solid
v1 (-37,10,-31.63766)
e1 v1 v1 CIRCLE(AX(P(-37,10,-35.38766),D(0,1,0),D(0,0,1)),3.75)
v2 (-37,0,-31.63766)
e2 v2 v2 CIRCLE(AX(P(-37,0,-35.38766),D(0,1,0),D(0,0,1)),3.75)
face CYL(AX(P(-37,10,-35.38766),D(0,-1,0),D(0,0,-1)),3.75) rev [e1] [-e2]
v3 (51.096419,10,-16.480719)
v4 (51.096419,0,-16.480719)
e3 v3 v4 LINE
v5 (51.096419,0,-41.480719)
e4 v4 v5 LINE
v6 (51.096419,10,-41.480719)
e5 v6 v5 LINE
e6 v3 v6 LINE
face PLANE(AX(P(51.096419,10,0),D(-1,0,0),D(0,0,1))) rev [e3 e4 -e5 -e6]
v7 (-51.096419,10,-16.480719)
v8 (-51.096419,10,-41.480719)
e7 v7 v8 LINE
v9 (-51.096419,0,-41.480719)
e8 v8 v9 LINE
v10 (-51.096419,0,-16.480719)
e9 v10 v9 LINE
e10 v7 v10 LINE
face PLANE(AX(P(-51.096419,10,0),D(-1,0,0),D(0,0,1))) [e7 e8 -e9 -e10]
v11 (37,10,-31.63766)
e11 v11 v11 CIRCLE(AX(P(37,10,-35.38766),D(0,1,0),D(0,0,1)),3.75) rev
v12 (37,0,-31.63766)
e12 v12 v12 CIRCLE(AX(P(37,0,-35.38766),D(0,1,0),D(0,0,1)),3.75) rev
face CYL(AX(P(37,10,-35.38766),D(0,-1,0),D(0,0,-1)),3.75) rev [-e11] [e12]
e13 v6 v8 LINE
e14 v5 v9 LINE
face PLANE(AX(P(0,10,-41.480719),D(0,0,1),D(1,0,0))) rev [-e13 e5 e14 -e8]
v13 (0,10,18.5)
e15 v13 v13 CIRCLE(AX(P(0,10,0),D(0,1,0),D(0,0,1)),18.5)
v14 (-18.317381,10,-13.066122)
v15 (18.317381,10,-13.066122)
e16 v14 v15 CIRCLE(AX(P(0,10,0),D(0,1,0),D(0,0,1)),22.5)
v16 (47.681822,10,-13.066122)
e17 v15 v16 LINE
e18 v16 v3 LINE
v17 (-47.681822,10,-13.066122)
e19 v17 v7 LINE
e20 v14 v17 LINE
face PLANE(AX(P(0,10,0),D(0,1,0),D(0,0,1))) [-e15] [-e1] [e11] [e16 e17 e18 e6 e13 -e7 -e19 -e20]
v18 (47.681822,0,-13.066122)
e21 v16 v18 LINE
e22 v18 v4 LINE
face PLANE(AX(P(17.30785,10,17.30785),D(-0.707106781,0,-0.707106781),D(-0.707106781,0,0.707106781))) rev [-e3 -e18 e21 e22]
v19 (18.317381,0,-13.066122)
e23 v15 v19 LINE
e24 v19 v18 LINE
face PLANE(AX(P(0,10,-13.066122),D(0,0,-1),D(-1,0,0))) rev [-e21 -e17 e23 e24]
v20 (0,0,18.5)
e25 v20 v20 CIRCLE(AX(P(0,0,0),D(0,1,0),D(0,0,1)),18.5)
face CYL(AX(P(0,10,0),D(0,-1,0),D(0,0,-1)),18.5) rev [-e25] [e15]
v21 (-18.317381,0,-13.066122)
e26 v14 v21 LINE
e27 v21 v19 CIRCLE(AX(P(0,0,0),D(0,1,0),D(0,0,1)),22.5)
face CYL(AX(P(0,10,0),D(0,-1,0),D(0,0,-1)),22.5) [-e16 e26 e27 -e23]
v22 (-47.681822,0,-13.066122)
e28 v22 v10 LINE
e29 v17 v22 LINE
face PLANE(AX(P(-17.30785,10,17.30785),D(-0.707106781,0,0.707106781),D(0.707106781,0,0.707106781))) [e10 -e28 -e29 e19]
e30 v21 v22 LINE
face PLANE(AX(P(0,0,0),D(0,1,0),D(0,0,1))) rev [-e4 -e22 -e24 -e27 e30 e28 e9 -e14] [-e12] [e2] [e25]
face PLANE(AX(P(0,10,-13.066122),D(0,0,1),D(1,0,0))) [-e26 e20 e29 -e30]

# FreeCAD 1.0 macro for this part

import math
import FreeCAD as App
import Part
import Sketcher

doc = App.newDocument("Part")
body = doc.addObject("PartDesign::Body", "Body")

# Sketch on XZ plane
sketch1 = body.newObject("Sketcher::SketchObject", "Sketch")
sketch1.AttachmentSupport = (doc.getObject("XZ_Plane"), [""])
sketch1.MapMode = "FlatFace"
sketch1.addGeometry(Part.Circle(App.Vector(0, 0, 0), App.Vector(0, 0, 1), 22), False)
sketch1.addGeometry(Part.Circle(App.Vector(0, 0, 0), App.Vector(0, 0, 1), 18), False)
sketch1.addConstraint(Sketcher.Constraint("Coincident", 0, 3, -1, 1))
sketch1.addConstraint(Sketcher.Constraint("Coincident", 1, 3, -1, 1))
sketch1.addConstraint(Sketcher.Constraint("Diameter", 0, 45.0))
sketch1.addConstraint(Sketcher.Constraint("Diameter", 1, 37.0))
pad1 = body.newObject("PartDesign::Pad", "Pad")
pad1.Profile = sketch1
pad1.Length = 10
pad1.Reversed = True

# Sketch on XZ plane
sketch2 = body.newObject("Sketcher::SketchObject", "Sketch001")
sketch2.AttachmentSupport = (doc.getObject("XZ_Plane"), [""])
sketch2.MapMode = "FlatFace"
sketch2.addGeometry(Part.LineSegment(App.Vector(47.7, -13.1, 0), App.Vector(51.1, -16.5, 0)), False)
sketch2.addGeometry(Part.LineSegment(App.Vector(51.1, -16.5, 0), App.Vector(51.1, -41.5, 0)), False)
sketch2.addGeometry(Part.LineSegment(App.Vector(51.1, -41.5, 0), App.Vector(-51.1, -41.5, 0)), False)
sketch2.addGeometry(Part.LineSegment(App.Vector(-51.1, -41.5, 0), App.Vector(-51.1, -16.5, 0)), False)
sketch2.addGeometry(Part.LineSegment(App.Vector(-51.1, -16.5, 0), App.Vector(-47.7, -13.1, 0)), False)
sketch2.addGeometry(Part.LineSegment(App.Vector(-47.7, -13.1, 0), App.Vector(-13.1, -13.1, 0)), False)
sketch2.addGeometry(Part.ArcOfCircle(Part.Circle(App.Vector(0, 0, 0), App.Vector(0, 0, 1), 18.5), math.radians(-135), math.radians(-45)), False)
sketch2.addGeometry(Part.LineSegment(App.Vector(13.1, -13.1, 0), App.Vector(47.7, -13.1, 0)), False)
sketch2.addGeometry(Part.Circle(App.Vector(-37, -35.4, 0), App.Vector(0, 0, 1), 3.8), False)
sketch2.addGeometry(Part.Circle(App.Vector(37, -35.4, 0), App.Vector(0, 0, 1), 3.8), False)
sketch2.addConstraint(Sketcher.Constraint("Coincident", 0, 2, 1, 1))
sketch2.addConstraint(Sketcher.Constraint("Coincident", 1, 2, 2, 1))
sketch2.addConstraint(Sketcher.Constraint("Coincident", 2, 2, 3, 1))
sketch2.addConstraint(Sketcher.Constraint("Coincident", 3, 2, 4, 1))
sketch2.addConstraint(Sketcher.Constraint("Coincident", 4, 2, 5, 1))
sketch2.addConstraint(Sketcher.Constraint("Coincident", 5, 2, 6, 1))
sketch2.addConstraint(Sketcher.Constraint("Coincident", 6, 2, 7, 1))
sketch2.addConstraint(Sketcher.Constraint("Coincident", 7, 2, 0, 1))
sketch2.addConstraint(Sketcher.Constraint("Vertical", 1))
sketch2.addConstraint(Sketcher.Constraint("Horizontal", 2))
sketch2.addConstraint(Sketcher.Constraint("Vertical", 3))
sketch2.addConstraint(Sketcher.Constraint("Horizontal", 5))
sketch2.addConstraint(Sketcher.Constraint("Horizontal", 7))
sketch2.addConstraint(Sketcher.Constraint("Coincident", 6, 3, -1, 1))
sketch2.addConstraint(Sketcher.Constraint("Equal", 8, 9))
sketch2.addConstraint(Sketcher.Constraint("Symmetric", 8, 3, 9, 3, -2))
sketch2.addConstraint(Sketcher.Constraint("Symmetric", 0, 2, 3, 2, -2))
sketch2.addConstraint(Sketcher.Constraint("Symmetric", 4, 2, 7, 2, -2))
sketch2.addConstraint(Sketcher.Constraint("Perpendicular", 0, 4))
sketch2.addConstraint(Sketcher.Constraint("Diameter", 8, 7.5))
sketch2.addConstraint(Sketcher.Constraint("Radius", 6, 18.5))
sketch2.addConstraint(Sketcher.Constraint("DistanceY", 1, 2, 1, 1, 25.0))
sketch2.addConstraint(Sketcher.Constraint("DistanceX", 8, 3, -1, 1, 37.0))
sketch2.addConstraint(Sketcher.Constraint("DistanceX", 2, 2, 2, 1, 102.192838))
sketch2.addConstraint(Sketcher.Constraint("DistanceX", 5, 1, 5, 2, 34.585011))
sketch2.addConstraint(Sketcher.Constraint("Distance", 0, 4.82897))
sketch2.addConstraint(Sketcher.Constraint("DistanceY", 8, 3, -1, 1, 35.38766))
pad2 = body.newObject("PartDesign::Pad", "Pad001")
pad2.Profile = sketch2
pad2.Length = 10
pad2.Reversed = True

doc.recompute()
